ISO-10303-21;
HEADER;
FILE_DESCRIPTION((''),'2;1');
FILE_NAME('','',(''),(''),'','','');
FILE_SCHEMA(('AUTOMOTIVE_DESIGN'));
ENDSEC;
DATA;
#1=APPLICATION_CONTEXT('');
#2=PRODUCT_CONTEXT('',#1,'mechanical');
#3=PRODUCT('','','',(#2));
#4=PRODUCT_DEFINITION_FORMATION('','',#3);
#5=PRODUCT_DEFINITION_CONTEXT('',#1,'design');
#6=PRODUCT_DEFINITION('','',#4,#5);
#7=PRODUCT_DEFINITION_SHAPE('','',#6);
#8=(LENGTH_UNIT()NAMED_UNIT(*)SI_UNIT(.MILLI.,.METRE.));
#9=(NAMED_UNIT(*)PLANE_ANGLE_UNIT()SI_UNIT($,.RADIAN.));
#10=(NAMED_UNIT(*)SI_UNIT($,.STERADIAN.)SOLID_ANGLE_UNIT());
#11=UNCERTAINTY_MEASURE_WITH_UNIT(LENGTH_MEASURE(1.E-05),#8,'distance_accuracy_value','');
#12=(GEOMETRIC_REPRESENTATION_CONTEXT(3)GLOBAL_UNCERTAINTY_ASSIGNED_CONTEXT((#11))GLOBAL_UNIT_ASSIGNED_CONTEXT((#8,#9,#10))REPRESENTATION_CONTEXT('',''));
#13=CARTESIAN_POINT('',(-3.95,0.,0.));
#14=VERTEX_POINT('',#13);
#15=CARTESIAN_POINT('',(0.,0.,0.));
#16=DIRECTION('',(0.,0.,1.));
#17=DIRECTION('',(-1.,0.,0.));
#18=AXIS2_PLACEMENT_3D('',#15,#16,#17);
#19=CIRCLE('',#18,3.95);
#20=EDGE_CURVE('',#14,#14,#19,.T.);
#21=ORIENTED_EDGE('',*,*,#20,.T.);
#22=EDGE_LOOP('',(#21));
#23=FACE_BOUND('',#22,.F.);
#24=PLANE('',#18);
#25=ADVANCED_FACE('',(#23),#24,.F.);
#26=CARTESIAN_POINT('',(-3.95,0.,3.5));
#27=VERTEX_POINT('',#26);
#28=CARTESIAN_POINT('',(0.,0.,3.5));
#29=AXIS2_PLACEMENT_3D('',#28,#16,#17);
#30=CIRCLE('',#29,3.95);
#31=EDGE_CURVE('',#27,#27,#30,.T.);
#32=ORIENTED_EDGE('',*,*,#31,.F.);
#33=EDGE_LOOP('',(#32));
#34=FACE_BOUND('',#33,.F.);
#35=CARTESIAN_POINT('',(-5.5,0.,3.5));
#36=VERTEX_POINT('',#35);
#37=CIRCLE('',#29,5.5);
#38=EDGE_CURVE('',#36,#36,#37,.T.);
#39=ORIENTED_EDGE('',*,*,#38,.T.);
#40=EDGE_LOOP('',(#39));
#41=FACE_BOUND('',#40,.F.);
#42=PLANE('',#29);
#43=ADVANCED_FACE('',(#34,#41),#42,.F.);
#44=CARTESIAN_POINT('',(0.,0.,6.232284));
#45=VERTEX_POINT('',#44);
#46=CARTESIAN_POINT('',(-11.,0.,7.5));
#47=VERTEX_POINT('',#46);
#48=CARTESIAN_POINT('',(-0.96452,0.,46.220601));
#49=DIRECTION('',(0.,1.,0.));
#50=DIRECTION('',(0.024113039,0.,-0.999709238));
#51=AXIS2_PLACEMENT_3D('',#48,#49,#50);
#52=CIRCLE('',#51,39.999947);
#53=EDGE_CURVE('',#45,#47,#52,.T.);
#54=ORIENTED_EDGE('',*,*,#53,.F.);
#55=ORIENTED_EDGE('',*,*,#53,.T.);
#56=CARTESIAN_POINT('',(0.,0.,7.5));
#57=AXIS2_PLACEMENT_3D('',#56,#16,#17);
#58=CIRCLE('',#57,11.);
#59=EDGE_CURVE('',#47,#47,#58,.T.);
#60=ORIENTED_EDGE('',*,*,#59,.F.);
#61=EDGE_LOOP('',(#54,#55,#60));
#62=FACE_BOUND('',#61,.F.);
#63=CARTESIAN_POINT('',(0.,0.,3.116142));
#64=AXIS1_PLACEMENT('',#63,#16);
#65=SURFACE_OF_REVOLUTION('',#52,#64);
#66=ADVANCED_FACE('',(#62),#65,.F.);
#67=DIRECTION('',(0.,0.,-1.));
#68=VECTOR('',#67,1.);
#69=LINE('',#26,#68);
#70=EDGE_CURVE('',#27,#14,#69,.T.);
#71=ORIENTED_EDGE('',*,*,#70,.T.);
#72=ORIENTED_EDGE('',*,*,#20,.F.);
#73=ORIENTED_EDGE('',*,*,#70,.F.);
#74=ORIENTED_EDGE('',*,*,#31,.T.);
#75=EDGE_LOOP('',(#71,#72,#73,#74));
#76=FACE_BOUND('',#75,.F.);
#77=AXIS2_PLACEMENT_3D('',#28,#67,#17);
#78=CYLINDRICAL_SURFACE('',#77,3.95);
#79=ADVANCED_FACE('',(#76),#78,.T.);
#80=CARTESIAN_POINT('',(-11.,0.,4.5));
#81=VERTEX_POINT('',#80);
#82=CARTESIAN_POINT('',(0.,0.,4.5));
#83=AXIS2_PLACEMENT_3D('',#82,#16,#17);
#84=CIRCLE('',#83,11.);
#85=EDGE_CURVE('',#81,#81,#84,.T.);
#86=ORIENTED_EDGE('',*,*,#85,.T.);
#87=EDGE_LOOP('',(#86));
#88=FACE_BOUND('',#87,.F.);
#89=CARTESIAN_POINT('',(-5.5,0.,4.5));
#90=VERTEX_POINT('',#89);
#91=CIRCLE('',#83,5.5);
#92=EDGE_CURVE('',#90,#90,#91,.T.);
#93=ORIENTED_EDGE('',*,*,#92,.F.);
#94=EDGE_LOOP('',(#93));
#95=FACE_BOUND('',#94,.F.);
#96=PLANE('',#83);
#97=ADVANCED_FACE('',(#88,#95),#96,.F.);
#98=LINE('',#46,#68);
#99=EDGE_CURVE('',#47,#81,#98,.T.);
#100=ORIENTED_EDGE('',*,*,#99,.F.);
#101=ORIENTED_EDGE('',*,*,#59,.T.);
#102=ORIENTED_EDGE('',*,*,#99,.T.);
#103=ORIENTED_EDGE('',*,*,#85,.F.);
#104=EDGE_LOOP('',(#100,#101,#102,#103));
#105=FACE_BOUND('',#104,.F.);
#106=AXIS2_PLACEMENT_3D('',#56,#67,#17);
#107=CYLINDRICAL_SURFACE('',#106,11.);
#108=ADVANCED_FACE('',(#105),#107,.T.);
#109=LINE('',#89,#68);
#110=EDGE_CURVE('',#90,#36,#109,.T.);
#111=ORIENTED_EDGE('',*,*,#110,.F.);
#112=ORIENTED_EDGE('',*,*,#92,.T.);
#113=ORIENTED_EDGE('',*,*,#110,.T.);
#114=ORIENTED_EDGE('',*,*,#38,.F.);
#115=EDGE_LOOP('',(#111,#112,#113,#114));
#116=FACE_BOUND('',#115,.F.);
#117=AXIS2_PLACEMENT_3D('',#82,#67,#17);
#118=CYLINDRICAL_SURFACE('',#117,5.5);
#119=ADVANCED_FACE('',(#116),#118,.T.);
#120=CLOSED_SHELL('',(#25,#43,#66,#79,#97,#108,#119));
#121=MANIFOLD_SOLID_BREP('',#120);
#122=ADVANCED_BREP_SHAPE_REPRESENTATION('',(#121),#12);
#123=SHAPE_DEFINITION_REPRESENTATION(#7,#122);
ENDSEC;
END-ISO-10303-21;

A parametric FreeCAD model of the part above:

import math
import FreeCAD as App
import Part
import Sketcher

doc = App.newDocument("Part")
body = doc.addObject("PartDesign::Body", "Body")

sketch1 = doc.addObject("Sketcher::SketchObject", "Sketch")
body.addObject(sketch1)
sketch1.AttachmentSupport = (doc.XZ_Plane, [""])
sketch1.MapMode = "FlatFace"
sketch1.addGeometry([
    Part.LineSegment(App.Vector(-4, 0, 0), App.Vector(0, 0, 0)),
    Part.LineSegment(App.Vector(0, 0, 0), App.Vector(0, 6.2, 0)),
    Part.ArcOfCircle(Part.Circle(App.Vector(-1, 46.2, 0), App.Vector(0, 0, 1), 40), math.radians(-104.53), math.radians(-88.62)),
    Part.LineSegment(App.Vector(-11, 7.5, 0), App.Vector(-11, 4.5, 0)),
    Part.LineSegment(App.Vector(-11, 4.5, 0), App.Vector(-5.5, 4.5, 0)),
    Part.LineSegment(App.Vector(-5.5, 4.5, 0), App.Vector(-5.5, 3.5, 0)),
    Part.LineSegment(App.Vector(-5.5, 3.5, 0), App.Vector(-4, 3.5, 0)),
    Part.LineSegment(App.Vector(-4, 3.5, 0), App.Vector(-4, 0, 0)),
], False)
sketch1.addConstraint([
    Sketcher.Constraint("Coincident", 0, 2, 1, 1),
    Sketcher.Constraint("Coincident", 1, 2, 2, 2),
    Sketcher.Constraint("Coincident", 2, 1, 3, 1),
    Sketcher.Constraint("Coincident", 3, 2, 4, 1),
    Sketcher.Constraint("Coincident", 4, 2, 5, 1),
    Sketcher.Constraint("Coincident", 5, 2, 6, 1),
    Sketcher.Constraint("Coincident", 6, 2, 7, 1),
    Sketcher.Constraint("Coincident", 7, 2, 0, 1),
    Sketcher.Constraint("Horizontal", 0),
    Sketcher.Constraint("Vertical", 1),
    Sketcher.Constraint("Vertical", 3),
    Sketcher.Constraint("Horizontal", 4),
    Sketcher.Constraint("Vertical", 5),
    Sketcher.Constraint("Horizontal", 6),
    Sketcher.Constraint("Vertical", 7),
    Sketcher.Constraint("Coincident", 0, 2, -1, 1),
    Sketcher.Constraint("DistanceY", 3, 2, 3, 1, 3.0),
    Sketcher.Constraint("DistanceY", 5, 2, 5, 1, 1.0),
    Sketcher.Constraint("DistanceX", 4, 1, 4, 2, 5.5),
    Sketcher.Constraint("DistanceY", 7, 2, 7, 1, 3.5),
    Sketcher.Constraint("DistanceX", 2, 1, -1, 1, 11.0),
    Sketcher.Constraint("DistanceX", 0, 1, 0, 2, 3.95),
    Sketcher.Constraint("Radius", 2, 39.999947),
    Sketcher.Constraint("DistanceY", -1, 1, 2, 3, 46.220601),
])
revolution = doc.addObject("PartDesign::Revolution", "Revolution")
body.addObject(revolution)
revolution.Profile = sketch1
revolution.ReferenceAxis = (sketch1, ["V_Axis"])
revolution.Angle = 360

doc.recompute()
